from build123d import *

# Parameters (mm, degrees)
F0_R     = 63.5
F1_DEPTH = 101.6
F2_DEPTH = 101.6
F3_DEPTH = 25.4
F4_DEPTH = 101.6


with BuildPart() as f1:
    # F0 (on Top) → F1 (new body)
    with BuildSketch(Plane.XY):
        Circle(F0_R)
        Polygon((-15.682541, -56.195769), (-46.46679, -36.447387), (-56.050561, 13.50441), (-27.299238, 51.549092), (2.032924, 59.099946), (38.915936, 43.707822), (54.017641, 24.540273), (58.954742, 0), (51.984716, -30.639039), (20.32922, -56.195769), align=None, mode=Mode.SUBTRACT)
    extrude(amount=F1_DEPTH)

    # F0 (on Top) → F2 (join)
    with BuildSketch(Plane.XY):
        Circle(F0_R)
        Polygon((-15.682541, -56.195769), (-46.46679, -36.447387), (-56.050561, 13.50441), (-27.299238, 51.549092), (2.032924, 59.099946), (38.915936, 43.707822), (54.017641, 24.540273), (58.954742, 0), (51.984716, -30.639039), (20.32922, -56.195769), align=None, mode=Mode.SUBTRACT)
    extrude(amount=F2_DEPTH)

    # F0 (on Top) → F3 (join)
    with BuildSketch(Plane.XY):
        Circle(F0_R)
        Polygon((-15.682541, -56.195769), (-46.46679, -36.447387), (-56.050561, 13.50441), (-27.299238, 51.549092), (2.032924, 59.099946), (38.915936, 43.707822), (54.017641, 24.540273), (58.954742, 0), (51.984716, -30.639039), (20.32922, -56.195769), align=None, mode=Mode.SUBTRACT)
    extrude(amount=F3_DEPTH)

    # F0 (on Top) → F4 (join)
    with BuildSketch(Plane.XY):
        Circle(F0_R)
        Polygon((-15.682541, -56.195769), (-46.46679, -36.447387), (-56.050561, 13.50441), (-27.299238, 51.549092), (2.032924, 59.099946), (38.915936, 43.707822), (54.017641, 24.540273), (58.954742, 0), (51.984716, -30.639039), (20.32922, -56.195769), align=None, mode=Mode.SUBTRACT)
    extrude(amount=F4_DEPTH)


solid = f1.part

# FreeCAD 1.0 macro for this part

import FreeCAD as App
import Part
import Sketcher

V = App.Vector
Q = App.Units.Quantity

doc = App.newDocument("Part")
params = doc.addObject("Spreadsheet::Sheet", "Params")
for row, (alias, value) in enumerate([
    ("sketch1_diameter", "5 in"),
    ("pad1_length", "4 in"),
    ("sketch2_diameter", "5 in"),
    ("pad2_length", "4 in"),
    ("sketch3_diameter", "5 in"),
    ("pad3_length", "1 in"),
    ("sketch4_diameter", "5 in"),
    ("pad4_length", "4 in"),
], start=1):
    params.set(f"A{row}", alias)
    params.set(f"B{row}", "=" + value)
    params.setAlias(f"B{row}", alias)

body = doc.addObject("PartDesign::Body", "Body")

sketch1 = doc.addObject("Sketcher::SketchObject", "Sketch")
body.addObject(sketch1)
sketch1.AttachmentSupport = (doc.XY_Plane, [""])
sketch1.MapMode = "FlatFace"
sketch1.addGeometry([
    Part.Circle(V(0, 0, 0), V(0, 0, 1), 64),
    Part.LineSegment(V(20, -56, 0), V(-16, -56, 0)),
    Part.LineSegment(V(-16, -56, 0), V(-46, -36, 0)),
    Part.LineSegment(V(-46, -36, 0), V(-56, 14, 0)),
    Part.LineSegment(V(-56, 14, 0), V(-27, 52, 0)),
    Part.LineSegment(V(-27, 52, 0), V(2, 59, 0)),
    Part.LineSegment(V(2, 59, 0), V(39, 44, 0)),
    Part.LineSegment(V(39, 44, 0), V(54, 25, 0)),
    Part.LineSegment(V(54, 25, 0), V(59, 0, 0)),
    Part.LineSegment(V(59, 0, 0), V(52, -31, 0)),
    Part.LineSegment(V(52, -31, 0), V(20, -56, 0)),
], False)
sketch1.addConstraint([
    Sketcher.Constraint("Coincident", 1, 2, 2, 1),
    Sketcher.Constraint("Coincident", 2, 2, 3, 1),
    Sketcher.Constraint("Coincident", 3, 2, 4, 1),
    Sketcher.Constraint("Coincident", 4, 2, 5, 1),
    Sketcher.Constraint("Coincident", 5, 2, 6, 1),
    Sketcher.Constraint("Coincident", 6, 2, 7, 1),
    Sketcher.Constraint("Coincident", 7, 2, 8, 1),
    Sketcher.Constraint("Coincident", 8, 2, 9, 1),
    Sketcher.Constraint("Coincident", 9, 2, 10, 1),
    Sketcher.Constraint("Coincident", 10, 2, 1, 1),
    Sketcher.Constraint("Horizontal", 1),
    Sketcher.Constraint("Coincident", 0, 3, -1, 1),
    Sketcher.Constraint("PointOnObject", 8, 2, -1),
    Sketcher.Constraint("Diameter", 0, Q("5 in")),
    Sketcher.Constraint("DistanceY", 3, 2, 5, 2, Q("1.7950998 in")),
    Sketcher.Constraint("DistanceX", 1, 2, 1, 1, Q("36.011761 mm")),
    Sketcher.Constraint("DistanceX", 7, 2, 8, 2, Q("4.937101 mm")),
    Sketcher.Constraint("Distance", 2, Q("36.574152 mm")),
    Sketcher.Constraint("Distance", 3, Q("50.862862 mm")),
    Sketcher.Constraint("Distance", 6, Q("39.965911 mm")),
    Sketcher.Constraint("Distance", 8, Q("25.031979 mm")),
    Sketcher.Constraint("Distance", 9, Q("31.421839 mm")),
    Sketcher.Constraint("DistanceX", 1, 2, -1, 1, Q("15.682541 mm")),
    Sketcher.Constraint("DistanceY", 1, 2, -1, 1, Q("56.195769 mm")),
    Sketcher.Constraint("DistanceX", 2, 2, -1, 1, Q("46.46679 mm")),
    Sketcher.Constraint("DistanceX", 3, 2, -1, 1, Q("56.050561 mm")),
    Sketcher.Constraint("DistanceX", -1, 1, 7, 2, Q("54.017641 mm")),
    Sketcher.Constraint("DistanceY", 9, 2, -1, 1, Q("30.639039 mm")),
    Sketcher.Constraint("DistanceY", 2, 2, 4, 2, Q("87.996479 mm")),
    Sketcher.Constraint("DistanceY", 6, 2, 4, 2, Q("7.84127 mm")),
    Sketcher.Constraint("DistanceX", 4, 2, 7, 2, Q("81.316879 mm")),
    Sketcher.Constraint("DistanceX", 5, 2, 8, 2, Q("56.921818 mm")),
])
sketch1.setExpression("Constraints[13]", "Params.sketch1_diameter")
pad1 = doc.addObject("PartDesign::Pad", "Pad")
body.addObject(pad1)
pad1.Profile = sketch1
pad1.setExpression("Length", "Params.pad1_length")

sketch2 = doc.addObject("Sketcher::SketchObject", "Sketch001")
body.addObject(sketch2)
sketch2.AttachmentSupport = (doc.XY_Plane, [""])
sketch2.MapMode = "FlatFace"
sketch2.addGeometry([
    Part.Circle(V(0, 0, 0), V(0, 0, 1), 64),
    Part.LineSegment(V(20, -56, 0), V(-16, -56, 0)),
    Part.LineSegment(V(-16, -56, 0), V(-46, -36, 0)),
    Part.LineSegment(V(-46, -36, 0), V(-56, 14, 0)),
    Part.LineSegment(V(-56, 14, 0), V(-27, 52, 0)),
    Part.LineSegment(V(-27, 52, 0), V(2, 59, 0)),
    Part.LineSegment(V(2, 59, 0), V(39, 44, 0)),
    Part.LineSegment(V(39, 44, 0), V(54, 25, 0)),
    Part.LineSegment(V(54, 25, 0), V(59, 0, 0)),
    Part.LineSegment(V(59, 0, 0), V(52, -31, 0)),
    Part.LineSegment(V(52, -31, 0), V(20, -56, 0)),
], False)
sketch2.addConstraint([
    Sketcher.Constraint("Coincident", 1, 2, 2, 1),
    Sketcher.Constraint("Coincident", 2, 2, 3, 1),
    Sketcher.Constraint("Coincident", 3, 2, 4, 1),
    Sketcher.Constraint("Coincident", 4, 2, 5, 1),
    Sketcher.Constraint("Coincident", 5, 2, 6, 1),
    Sketcher.Constraint("Coincident", 6, 2, 7, 1),
    Sketcher.Constraint("Coincident", 7, 2, 8, 1),
    Sketcher.Constraint("Coincident", 8, 2, 9, 1),
    Sketcher.Constraint("Coincident", 9, 2, 10, 1),
    Sketcher.Constraint("Coincident", 10, 2, 1, 1),
    Sketcher.Constraint("Horizontal", 1),
    Sketcher.Constraint("Coincident", 0, 3, -1, 1),
    Sketcher.Constraint("PointOnObject", 8, 2, -1),
    Sketcher.Constraint("Diameter", 0, Q("5 in")),
    Sketcher.Constraint("DistanceY", 3, 2, 5, 2, Q("1.7950998 in")),
    Sketcher.Constraint("DistanceX", 1, 2, 1, 1, Q("36.011761 mm")),
    Sketcher.Constraint("DistanceX", 7, 2, 8, 2, Q("4.937101 mm")),
    Sketcher.Constraint("Distance", 2, Q("36.574152 mm")),
    Sketcher.Constraint("Distance", 3, Q("50.862862 mm")),
    Sketcher.Constraint("Distance", 6, Q("39.965911 mm")),
    Sketcher.Constraint("Distance", 8, Q("25.031979 mm")),
    Sketcher.Constraint("Distance", 9, Q("31.421839 mm")),
    Sketcher.Constraint("DistanceX", 1, 2, -1, 1, Q("15.682541 mm")),
    Sketcher.Constraint("DistanceY", 1, 2, -1, 1, Q("56.195769 mm")),
    Sketcher.Constraint("DistanceX", 2, 2, -1, 1, Q("46.46679 mm")),
    Sketcher.Constraint("DistanceX", 3, 2, -1, 1, Q("56.050561 mm")),
    Sketcher.Constraint("DistanceX", -1, 1, 7, 2, Q("54.017641 mm")),
    Sketcher.Constraint("DistanceY", 9, 2, -1, 1, Q("30.639039 mm")),
    Sketcher.Constraint("DistanceY", 2, 2, 4, 2, Q("87.996479 mm")),
    Sketcher.Constraint("DistanceY", 6, 2, 4, 2, Q("7.84127 mm")),
    Sketcher.Constraint("DistanceX", 4, 2, 7, 2, Q("81.316879 mm")),
    Sketcher.Constraint("DistanceX", 5, 2, 8, 2, Q("56.921818 mm")),
])
sketch2.setExpression("Constraints[13]", "Params.sketch2_diameter")
pad2 = doc.addObject("PartDesign::Pad", "Pad001")
body.addObject(pad2)
pad2.Profile = sketch2
pad2.setExpression("Length", "Params.pad2_length")

sketch3 = doc.addObject("Sketcher::SketchObject", "Sketch002")
body.addObject(sketch3)
sketch3.AttachmentSupport = (doc.XY_Plane, [""])
sketch3.MapMode = "FlatFace"
sketch3.addGeometry([
    Part.Circle(V(0, 0, 0), V(0, 0, 1), 64),
    Part.LineSegment(V(20, -56, 0), V(-16, -56, 0)),
    Part.LineSegment(V(-16, -56, 0), V(-46, -36, 0)),
    Part.LineSegment(V(-46, -36, 0), V(-56, 14, 0)),
    Part.LineSegment(V(-56, 14, 0), V(-27, 52, 0)),
    Part.LineSegment(V(-27, 52, 0), V(2, 59, 0)),
    Part.LineSegment(V(2, 59, 0), V(39, 44, 0)),
    Part.LineSegment(V(39, 44, 0), V(54, 25, 0)),
    Part.LineSegment(V(54, 25, 0), V(59, 0, 0)),
    Part.LineSegment(V(59, 0, 0), V(52, -31, 0)),
    Part.LineSegment(V(52, -31, 0), V(20, -56, 0)),
], False)
sketch3.addConstraint([
    Sketcher.Constraint("Coincident", 1, 2, 2, 1),
    Sketcher.Constraint("Coincident", 2, 2, 3, 1),
    Sketcher.Constraint("Coincident", 3, 2, 4, 1),
    Sketcher.Constraint("Coincident", 4, 2, 5, 1),
    Sketcher.Constraint("Coincident", 5, 2, 6, 1),
    Sketcher.Constraint("Coincident", 6, 2, 7, 1),
    Sketcher.Constraint("Coincident", 7, 2, 8, 1),
    Sketcher.Constraint("Coincident", 8, 2, 9, 1),
    Sketcher.Constraint("Coincident", 9, 2, 10, 1),
    Sketcher.Constraint("Coincident", 10, 2, 1, 1),
    Sketcher.Constraint("Horizontal", 1),
    Sketcher.Constraint("Coincident", 0, 3, -1, 1),
    Sketcher.Constraint("PointOnObject", 8, 2, -1),
    Sketcher.Constraint("Diameter", 0, Q("5 in")),
    Sketcher.Constraint("DistanceY", 3, 2, 5, 2, Q("1.7950998 in")),
    Sketcher.Constraint("DistanceX", 1, 2, 1, 1, Q("36.011761 mm")),
    Sketcher.Constraint("DistanceX", 7, 2, 8, 2, Q("4.937101 mm")),
    Sketcher.Constraint("Distance", 2, Q("36.574152 mm")),
    Sketcher.Constraint("Distance", 3, Q("50.862862 mm")),
    Sketcher.Constraint("Distance", 6, Q("39.965911 mm")),
    Sketcher.Constraint("Distance", 8, Q("25.031979 mm")),
    Sketcher.Constraint("Distance", 9, Q("31.421839 mm")),
    Sketcher.Constraint("DistanceX", 1, 2, -1, 1, Q("15.682541 mm")),
    Sketcher.Constraint("DistanceY", 1, 2, -1, 1, Q("56.195769 mm")),
    Sketcher.Constraint("DistanceX", 2, 2, -1, 1, Q("46.46679 mm")),
    Sketcher.Constraint("DistanceX", 3, 2, -1, 1, Q("56.050561 mm")),
    Sketcher.Constraint("DistanceX", -1, 1, 7, 2, Q("54.017641 mm")),
    Sketcher.Constraint("DistanceY", 9, 2, -1, 1, Q("30.639039 mm")),
    Sketcher.Constraint("DistanceY", 2, 2, 4, 2, Q("87.996479 mm")),
    Sketcher.Constraint("DistanceY", 6, 2, 4, 2, Q("7.84127 mm")),
    Sketcher.Constraint("DistanceX", 4, 2, 7, 2, Q("81.316879 mm")),
    Sketcher.Constraint("DistanceX", 5, 2, 8, 2, Q("56.921818 mm")),
])
sketch3.setExpression("Constraints[13]", "Params.sketch3_diameter")
pad3 = doc.addObject("PartDesign::Pad", "Pad002")
body.addObject(pad3)
pad3.Profile = sketch3
pad3.setExpression("Length", "Params.pad3_length")

sketch4 = doc.addObject("Sketcher::SketchObject", "Sketch003")
body.addObject(sketch4)
sketch4.AttachmentSupport = (doc.XY_Plane, [""])
sketch4.MapMode = "FlatFace"
sketch4.addGeometry([
    Part.Circle(V(0, 0, 0), V(0, 0, 1), 64),
    Part.LineSegment(V(20, -56, 0), V(-16, -56, 0)),
    Part.LineSegment(V(-16, -56, 0), V(-46, -36, 0)),
    Part.LineSegment(V(-46, -36, 0), V(-56, 14, 0)),
    Part.LineSegment(V(-56, 14, 0), V(-27, 52, 0)),
    Part.LineSegment(V(-27, 52, 0), V(2, 59, 0)),
    Part.LineSegment(V(2, 59, 0), V(39, 44, 0)),
    Part.LineSegment(V(39, 44, 0), V(54, 25, 0)),
    Part.LineSegment(V(54, 25, 0), V(59, 0, 0)),
    Part.LineSegment(V(59, 0, 0), V(52, -31, 0)),
    Part.LineSegment(V(52, -31, 0), V(20, -56, 0)),
], False)
sketch4.addConstraint([
    Sketcher.Constraint("Coincident", 1, 2, 2, 1),
    Sketcher.Constraint("Coincident", 2, 2, 3, 1),
    Sketcher.Constraint("Coincident", 3, 2, 4, 1),
    Sketcher.Constraint("Coincident", 4, 2, 5, 1),
    Sketcher.Constraint("Coincident", 5, 2, 6, 1),
    Sketcher.Constraint("Coincident", 6, 2, 7, 1),
    Sketcher.Constraint("Coincident", 7, 2, 8, 1),
    Sketcher.Constraint("Coincident", 8, 2, 9, 1),
    Sketcher.Constraint("Coincident", 9, 2, 10, 1),
    Sketcher.Constraint("Coincident", 10, 2, 1, 1),
    Sketcher.Constraint("Horizontal", 1),
    Sketcher.Constraint("Coincident", 0, 3, -1, 1),
    Sketcher.Constraint("PointOnObject", 8, 2, -1),
    Sketcher.Constraint("Diameter", 0, Q("5 in")),
    Sketcher.Constraint("DistanceY", 3, 2, 5, 2, Q("1.7950998 in")),
    Sketcher.Constraint("DistanceX", 1, 2, 1, 1, Q("36.011761 mm")),
    Sketcher.Constraint("DistanceX", 7, 2, 8, 2, Q("4.937101 mm")),
    Sketcher.Constraint("Distance", 2, Q("36.574152 mm")),
    Sketcher.Constraint("Distance", 3, Q("50.862862 mm")),
    Sketcher.Constraint("Distance", 6, Q("39.965911 mm")),
    Sketcher.Constraint("Distance", 8, Q("25.031979 mm")),
    Sketcher.Constraint("Distance", 9, Q("31.421839 mm")),
    Sketcher.Constraint("DistanceX", 1, 2, -1, 1, Q("15.682541 mm")),
    Sketcher.Constraint("DistanceY", 1, 2, -1, 1, Q("56.195769 mm")),
    Sketcher.Constraint("DistanceX", 2, 2, -1, 1, Q("46.46679 mm")),
    Sketcher.Constraint("DistanceX", 3, 2, -1, 1, Q("56.050561 mm")),
    Sketcher.Constraint("DistanceX", -1, 1, 7, 2, Q("54.017641 mm")),
    Sketcher.Constraint("DistanceY", 9, 2, -1, 1, Q("30.639039 mm")),
    Sketcher.Constraint("DistanceY", 2, 2, 4, 2, Q("87.996479 mm")),
    Sketcher.Constraint("DistanceY", 6, 2, 4, 2, Q("7.84127 mm")),
    Sketcher.Constraint("DistanceX", 4, 2, 7, 2, Q("81.316879 mm")),
    Sketcher.Constraint("DistanceX", 5, 2, 8, 2, Q("56.921818 mm")),
])
sketch4.setExpression("Constraints[13]", "Params.sketch4_diameter")
pad4 = doc.addObject("PartDesign::Pad", "Pad003")
body.addObject(pad4)
pad4.Profile = sketch4
pad4.setExpression("Length", "Params.pad4_length")

doc.recompute()
